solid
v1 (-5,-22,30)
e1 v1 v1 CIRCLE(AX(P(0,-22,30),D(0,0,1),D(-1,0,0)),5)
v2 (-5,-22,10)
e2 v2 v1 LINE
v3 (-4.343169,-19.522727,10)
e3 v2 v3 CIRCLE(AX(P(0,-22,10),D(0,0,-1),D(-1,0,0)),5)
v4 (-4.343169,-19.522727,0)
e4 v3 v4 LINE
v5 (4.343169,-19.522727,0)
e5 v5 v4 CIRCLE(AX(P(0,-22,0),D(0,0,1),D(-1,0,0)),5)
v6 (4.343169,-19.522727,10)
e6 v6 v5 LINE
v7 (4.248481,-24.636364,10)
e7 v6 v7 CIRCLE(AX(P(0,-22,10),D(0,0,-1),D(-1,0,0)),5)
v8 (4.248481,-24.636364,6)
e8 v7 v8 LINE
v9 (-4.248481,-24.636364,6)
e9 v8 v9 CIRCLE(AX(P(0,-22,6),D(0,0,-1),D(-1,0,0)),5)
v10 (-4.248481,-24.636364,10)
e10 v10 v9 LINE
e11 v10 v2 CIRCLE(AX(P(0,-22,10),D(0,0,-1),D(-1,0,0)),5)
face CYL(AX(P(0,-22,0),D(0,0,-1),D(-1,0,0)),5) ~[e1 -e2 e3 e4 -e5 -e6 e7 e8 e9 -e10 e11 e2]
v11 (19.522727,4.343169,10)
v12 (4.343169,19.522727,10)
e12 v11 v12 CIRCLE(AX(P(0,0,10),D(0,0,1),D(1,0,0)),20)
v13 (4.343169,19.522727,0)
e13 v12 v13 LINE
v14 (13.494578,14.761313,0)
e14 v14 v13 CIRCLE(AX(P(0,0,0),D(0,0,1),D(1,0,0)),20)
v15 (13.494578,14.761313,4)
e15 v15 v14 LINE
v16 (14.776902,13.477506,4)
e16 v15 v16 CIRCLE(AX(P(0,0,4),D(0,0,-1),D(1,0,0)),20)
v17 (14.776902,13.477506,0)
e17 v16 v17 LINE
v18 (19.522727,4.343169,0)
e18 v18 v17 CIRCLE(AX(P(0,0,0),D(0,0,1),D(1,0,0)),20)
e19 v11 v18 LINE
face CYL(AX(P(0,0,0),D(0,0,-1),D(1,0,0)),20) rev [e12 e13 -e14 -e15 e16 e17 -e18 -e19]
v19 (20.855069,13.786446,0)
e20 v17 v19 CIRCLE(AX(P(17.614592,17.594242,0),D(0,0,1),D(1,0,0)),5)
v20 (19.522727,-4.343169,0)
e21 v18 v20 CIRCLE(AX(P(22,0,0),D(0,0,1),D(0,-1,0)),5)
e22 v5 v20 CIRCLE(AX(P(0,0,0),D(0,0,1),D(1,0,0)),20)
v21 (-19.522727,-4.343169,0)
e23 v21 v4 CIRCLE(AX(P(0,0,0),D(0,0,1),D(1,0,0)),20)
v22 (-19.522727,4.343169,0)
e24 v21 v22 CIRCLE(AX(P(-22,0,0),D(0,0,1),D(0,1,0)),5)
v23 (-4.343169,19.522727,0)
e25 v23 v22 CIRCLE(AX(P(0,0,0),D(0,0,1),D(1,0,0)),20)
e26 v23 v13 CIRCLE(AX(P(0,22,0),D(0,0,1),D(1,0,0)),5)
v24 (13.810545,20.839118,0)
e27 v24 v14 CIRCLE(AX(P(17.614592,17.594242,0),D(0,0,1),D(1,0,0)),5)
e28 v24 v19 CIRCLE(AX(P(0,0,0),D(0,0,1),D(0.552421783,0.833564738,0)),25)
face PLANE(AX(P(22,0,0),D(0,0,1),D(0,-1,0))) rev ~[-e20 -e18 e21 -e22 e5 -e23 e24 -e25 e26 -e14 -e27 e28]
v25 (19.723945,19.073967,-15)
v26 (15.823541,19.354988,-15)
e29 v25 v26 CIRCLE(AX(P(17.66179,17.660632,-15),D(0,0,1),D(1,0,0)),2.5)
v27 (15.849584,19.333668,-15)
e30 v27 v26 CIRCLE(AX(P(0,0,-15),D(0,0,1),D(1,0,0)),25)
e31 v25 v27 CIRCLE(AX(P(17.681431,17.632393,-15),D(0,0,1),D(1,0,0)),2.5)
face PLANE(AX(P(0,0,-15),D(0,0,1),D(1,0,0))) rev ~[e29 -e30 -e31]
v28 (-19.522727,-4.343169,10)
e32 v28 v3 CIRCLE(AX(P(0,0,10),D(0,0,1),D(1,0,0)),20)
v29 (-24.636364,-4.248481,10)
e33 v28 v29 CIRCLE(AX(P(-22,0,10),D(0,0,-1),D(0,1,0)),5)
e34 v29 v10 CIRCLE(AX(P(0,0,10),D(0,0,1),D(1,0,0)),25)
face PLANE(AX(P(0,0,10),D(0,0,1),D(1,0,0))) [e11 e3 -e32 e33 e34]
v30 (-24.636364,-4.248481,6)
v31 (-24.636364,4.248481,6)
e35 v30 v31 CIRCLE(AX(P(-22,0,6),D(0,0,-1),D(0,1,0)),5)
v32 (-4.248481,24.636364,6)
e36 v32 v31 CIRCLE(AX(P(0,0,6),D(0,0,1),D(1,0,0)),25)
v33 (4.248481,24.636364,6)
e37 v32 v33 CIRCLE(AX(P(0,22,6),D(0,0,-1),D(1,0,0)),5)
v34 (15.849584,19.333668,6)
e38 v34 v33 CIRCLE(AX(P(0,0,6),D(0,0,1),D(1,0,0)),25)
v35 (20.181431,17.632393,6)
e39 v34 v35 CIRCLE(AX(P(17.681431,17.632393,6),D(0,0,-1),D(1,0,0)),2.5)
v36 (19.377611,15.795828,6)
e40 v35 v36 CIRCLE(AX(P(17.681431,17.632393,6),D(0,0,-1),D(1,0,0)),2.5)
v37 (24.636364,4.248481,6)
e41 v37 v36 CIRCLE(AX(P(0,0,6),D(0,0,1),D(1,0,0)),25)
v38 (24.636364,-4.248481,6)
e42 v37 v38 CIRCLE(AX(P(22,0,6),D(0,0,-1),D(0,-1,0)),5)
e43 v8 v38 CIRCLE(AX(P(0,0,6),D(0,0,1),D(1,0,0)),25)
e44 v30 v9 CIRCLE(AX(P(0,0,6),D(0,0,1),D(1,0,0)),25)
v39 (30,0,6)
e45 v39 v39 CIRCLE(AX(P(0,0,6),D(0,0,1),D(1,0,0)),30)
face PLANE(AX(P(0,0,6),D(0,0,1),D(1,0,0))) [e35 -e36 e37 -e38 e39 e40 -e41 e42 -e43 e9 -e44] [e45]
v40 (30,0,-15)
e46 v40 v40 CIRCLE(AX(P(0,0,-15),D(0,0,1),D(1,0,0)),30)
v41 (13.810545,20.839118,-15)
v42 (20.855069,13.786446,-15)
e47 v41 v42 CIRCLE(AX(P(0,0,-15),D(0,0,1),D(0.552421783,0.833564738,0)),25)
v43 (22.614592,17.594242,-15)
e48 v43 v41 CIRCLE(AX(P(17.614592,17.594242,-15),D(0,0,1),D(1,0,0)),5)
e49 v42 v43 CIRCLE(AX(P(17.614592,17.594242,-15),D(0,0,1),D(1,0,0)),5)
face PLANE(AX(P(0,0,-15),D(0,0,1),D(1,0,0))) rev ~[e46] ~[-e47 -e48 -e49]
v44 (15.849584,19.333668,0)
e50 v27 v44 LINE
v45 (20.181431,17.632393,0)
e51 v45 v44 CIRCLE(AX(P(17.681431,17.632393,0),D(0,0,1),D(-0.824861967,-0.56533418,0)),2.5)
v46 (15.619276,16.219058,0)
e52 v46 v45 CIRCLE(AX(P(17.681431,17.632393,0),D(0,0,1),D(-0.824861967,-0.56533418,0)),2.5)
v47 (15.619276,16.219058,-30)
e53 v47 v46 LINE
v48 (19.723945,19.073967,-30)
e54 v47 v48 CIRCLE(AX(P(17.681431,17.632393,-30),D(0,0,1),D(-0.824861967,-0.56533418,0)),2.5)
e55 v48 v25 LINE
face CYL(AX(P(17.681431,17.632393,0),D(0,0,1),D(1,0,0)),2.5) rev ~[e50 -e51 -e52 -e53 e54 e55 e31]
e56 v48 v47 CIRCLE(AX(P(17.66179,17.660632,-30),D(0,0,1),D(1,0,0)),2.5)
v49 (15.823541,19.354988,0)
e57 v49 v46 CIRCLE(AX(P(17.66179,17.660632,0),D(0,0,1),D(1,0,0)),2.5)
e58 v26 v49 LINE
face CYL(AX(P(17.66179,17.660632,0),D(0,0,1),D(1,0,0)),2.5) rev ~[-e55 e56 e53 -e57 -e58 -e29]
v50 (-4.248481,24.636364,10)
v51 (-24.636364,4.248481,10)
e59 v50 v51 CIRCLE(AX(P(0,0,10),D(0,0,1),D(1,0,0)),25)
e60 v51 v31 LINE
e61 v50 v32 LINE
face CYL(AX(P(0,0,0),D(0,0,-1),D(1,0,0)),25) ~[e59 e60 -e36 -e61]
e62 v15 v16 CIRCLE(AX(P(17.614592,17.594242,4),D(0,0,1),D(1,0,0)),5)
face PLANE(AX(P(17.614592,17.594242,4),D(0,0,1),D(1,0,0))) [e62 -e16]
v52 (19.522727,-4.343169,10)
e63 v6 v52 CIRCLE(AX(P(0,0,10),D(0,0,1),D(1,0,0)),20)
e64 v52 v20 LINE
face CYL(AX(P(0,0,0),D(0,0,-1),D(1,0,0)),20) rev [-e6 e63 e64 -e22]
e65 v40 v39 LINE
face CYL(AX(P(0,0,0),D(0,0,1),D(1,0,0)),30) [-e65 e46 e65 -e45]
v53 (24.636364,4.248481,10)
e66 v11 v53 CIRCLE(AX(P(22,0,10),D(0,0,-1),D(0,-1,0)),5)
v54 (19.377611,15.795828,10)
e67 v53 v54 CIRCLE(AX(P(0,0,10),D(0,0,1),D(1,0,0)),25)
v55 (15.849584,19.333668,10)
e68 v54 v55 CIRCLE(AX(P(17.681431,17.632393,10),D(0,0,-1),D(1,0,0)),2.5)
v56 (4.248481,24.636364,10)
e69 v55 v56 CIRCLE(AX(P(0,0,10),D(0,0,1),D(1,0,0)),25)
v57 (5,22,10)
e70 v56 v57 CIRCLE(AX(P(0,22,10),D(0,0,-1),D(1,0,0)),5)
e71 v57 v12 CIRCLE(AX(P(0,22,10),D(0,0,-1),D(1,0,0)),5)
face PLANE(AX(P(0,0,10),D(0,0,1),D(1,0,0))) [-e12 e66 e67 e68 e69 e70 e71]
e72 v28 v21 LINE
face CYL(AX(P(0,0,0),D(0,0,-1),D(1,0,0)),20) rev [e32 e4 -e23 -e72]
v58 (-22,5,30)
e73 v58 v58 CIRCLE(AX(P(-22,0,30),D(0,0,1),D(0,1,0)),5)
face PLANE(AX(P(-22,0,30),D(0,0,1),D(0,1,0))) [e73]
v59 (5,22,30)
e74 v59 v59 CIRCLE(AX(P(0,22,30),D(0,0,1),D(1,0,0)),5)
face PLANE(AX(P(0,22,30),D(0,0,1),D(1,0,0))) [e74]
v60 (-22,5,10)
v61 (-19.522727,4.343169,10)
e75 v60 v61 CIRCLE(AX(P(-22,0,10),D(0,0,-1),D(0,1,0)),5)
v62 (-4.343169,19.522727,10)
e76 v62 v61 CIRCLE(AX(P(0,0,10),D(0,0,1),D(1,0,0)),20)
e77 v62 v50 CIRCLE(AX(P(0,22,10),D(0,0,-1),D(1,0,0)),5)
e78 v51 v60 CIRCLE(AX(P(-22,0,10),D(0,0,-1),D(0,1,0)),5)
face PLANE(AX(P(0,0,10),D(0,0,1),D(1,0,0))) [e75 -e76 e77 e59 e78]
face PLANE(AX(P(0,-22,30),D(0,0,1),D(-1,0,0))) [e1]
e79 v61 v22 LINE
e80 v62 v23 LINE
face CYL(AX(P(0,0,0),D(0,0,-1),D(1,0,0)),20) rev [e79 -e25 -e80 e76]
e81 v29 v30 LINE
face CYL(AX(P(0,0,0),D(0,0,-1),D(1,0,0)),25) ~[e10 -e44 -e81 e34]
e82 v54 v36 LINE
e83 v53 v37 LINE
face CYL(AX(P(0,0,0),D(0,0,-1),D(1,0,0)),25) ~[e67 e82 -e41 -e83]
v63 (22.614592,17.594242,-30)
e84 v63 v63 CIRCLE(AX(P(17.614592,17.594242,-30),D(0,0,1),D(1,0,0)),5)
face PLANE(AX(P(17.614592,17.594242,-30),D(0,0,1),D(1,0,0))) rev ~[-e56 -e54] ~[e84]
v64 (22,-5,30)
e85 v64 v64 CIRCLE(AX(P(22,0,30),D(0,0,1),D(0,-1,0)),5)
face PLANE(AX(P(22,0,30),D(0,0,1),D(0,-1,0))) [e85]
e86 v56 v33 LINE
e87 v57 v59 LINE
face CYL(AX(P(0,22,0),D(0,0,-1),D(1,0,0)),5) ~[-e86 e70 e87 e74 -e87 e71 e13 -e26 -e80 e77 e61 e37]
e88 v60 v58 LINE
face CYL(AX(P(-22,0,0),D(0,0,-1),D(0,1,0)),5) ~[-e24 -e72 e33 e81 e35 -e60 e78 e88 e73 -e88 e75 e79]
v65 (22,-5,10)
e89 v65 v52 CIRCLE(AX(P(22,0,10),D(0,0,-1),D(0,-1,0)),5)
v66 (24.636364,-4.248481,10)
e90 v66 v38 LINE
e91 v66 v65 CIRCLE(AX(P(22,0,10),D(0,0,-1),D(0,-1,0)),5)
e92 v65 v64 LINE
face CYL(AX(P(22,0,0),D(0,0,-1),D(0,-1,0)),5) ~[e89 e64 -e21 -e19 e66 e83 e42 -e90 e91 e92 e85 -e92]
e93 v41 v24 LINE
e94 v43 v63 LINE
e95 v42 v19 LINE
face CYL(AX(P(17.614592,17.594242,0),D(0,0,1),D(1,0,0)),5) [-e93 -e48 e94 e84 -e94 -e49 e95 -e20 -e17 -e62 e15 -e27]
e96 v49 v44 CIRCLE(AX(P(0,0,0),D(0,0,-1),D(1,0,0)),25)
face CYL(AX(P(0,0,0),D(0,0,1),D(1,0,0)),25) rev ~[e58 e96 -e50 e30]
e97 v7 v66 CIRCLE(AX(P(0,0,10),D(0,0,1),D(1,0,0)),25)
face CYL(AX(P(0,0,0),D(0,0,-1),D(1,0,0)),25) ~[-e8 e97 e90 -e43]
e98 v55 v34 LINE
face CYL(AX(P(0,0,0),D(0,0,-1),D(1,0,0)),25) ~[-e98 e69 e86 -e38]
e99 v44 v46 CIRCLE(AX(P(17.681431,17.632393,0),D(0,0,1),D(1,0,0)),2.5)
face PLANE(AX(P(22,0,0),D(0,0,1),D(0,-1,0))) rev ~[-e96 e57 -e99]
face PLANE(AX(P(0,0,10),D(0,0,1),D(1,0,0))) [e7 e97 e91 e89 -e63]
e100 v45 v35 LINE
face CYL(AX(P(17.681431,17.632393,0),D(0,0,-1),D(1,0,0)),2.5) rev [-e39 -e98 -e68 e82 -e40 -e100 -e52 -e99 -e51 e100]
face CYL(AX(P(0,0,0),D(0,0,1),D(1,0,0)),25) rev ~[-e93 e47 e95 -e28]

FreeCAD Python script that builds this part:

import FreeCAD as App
import Part
import Sketcher

doc = App.newDocument("Part")
body = doc.addObject("PartDesign::Body", "Body")

sketch1 = body.newObject("Sketcher::SketchObject", "Sketch")
sketch1.AttachmentSupport = (doc.getObject("XY_Plane"), [""])
sketch1.MapMode = "FlatFace"
sketch1.addGeometry([
    Part.Circle(App.Vector(0, 0, 0), App.Vector(0, 0, 1), 30),
    Part.Circle(App.Vector(0, 0, 0), App.Vector(0, 0, 1), 25),
], False)
sketch1.addConstraint([
    Sketcher.Constraint("Coincident", 0, 3, -1, 1),
    Sketcher.Constraint("Coincident", 1, 3, -1, 1),
    Sketcher.Constraint("Diameter", 0, 60.0),
    Sketcher.Constraint("Diameter", 1, 50.0),
])
pad1 = body.newObject("PartDesign::Pad", "Pad")
pad1.Profile = sketch1
pad1.Type = "TwoLengths"
pad1.Length = 6
pad1.Length2 = 15

sketch2 = body.newObject("Sketcher::SketchObject", "Sketch001")
sketch2.AttachmentSupport = (doc.getObject("XY_Plane"), [""])
sketch2.MapMode = "FlatFace"
sketch2.addGeometry(Part.Circle(App.Vector(0, 22, 0), App.Vector(0, 0, 1), 5), False)
sketch2.addConstraint([
    Sketcher.Constraint("PointOnObject", 0, 3, -2),
    Sketcher.Constraint("Diameter", 0, 10.0),
    Sketcher.Constraint("DistanceY", -1, 1, 0, 3, 22.0),
])
pad2 = body.newObject("PartDesign::Pad", "Pad001")
pad2.Profile = sketch2
pad2.Length = 30
doc.recompute()

polarpattern = body.newObject("PartDesign::PolarPattern", "PolarPattern")
polarpattern.Originals = [pad2]
polarpattern.Axis = (doc.getObject("Z_Axis"), [""])
polarpattern.Angle = 360
polarpattern.Occurrences = 4
body.Tip = polarpattern

sketch3 = body.newObject("Sketcher::SketchObject", "Sketch002")
sketch3.AttachmentSupport = (doc.getObject("XY_Plane"), [""])
sketch3.MapMode = "FlatFace"
sketch3.addGeometry([
    Part.Circle(App.Vector(0, 0, 0), App.Vector(0, 0, 1), 25),
    Part.Circle(App.Vector(0, 0, 0), App.Vector(0, 0, 1), 20),
], False)
sketch3.addConstraint([
    Sketcher.Constraint("Coincident", 0, 3, -1, 1),
    Sketcher.Constraint("Coincident", 1, 3, -1, 1),
    Sketcher.Constraint("Diameter", 0, 50.0),
    Sketcher.Constraint("Diameter", 1, 40.0),
])
pad3 = body.newObject("PartDesign::Pad", "Pad002")
pad3.Profile = sketch3
pad3.Length = 10

sketch4 = body.newObject("Sketcher::SketchObject", "Sketch003")
sketch4.AttachmentSupport = (doc.getObject("XY_Plane"), [""])
sketch4.MapMode = "FlatFace"
sketch4.addGeometry([
    Part.Circle(App.Vector(17.6, 17.6, 0), App.Vector(0, 0, 1), 5),
    Part.Circle(App.Vector(17.7, 17.7, 0), App.Vector(0, 0, 1), 2.5),
], False)
sketch4.addConstraint([
    Sketcher.Constraint("Diameter", 0, 10.0),
    Sketcher.Constraint("Diameter", 1, 5.0),
    Sketcher.Constraint("DistanceX", 0, 3, 1, 3, 0.047198),
    Sketcher.Constraint("DistanceX", -1, 1, 0, 3, 17.614592),
    Sketcher.Constraint("DistanceY", -1, 1, 1, 3, 17.660632),
    Sketcher.Constraint("DistanceY", 0, 3, 1, 3, 0.06639),
])
pad4 = body.newObject("PartDesign::Pad", "Pad003")
pad4.Profile = sketch4
pad4.Type = "TwoLengths"
pad4.Length = 4
pad4.Length2 = 30

sketch5 = body.newObject("Sketcher::SketchObject", "Sketch004")
sketch5.AttachmentSupport = (doc.getObject("XY_Plane"), [""])
sketch5.MapMode = "FlatFace"
sketch5.addGeometry(Part.Circle(App.Vector(17.7, 17.6, 0), App.Vector(0, 0, 1), 2.5), False)
sketch5.addConstraint([
    Sketcher.Constraint("Diameter", 0, 5.0),
    Sketcher.Constraint("DistanceX", -1, 1, 0, 3, 17.681431),
    Sketcher.Constraint("DistanceY", -1, 1, 0, 3, 17.632393),
])
pocket1 = body.newObject("PartDesign::Pocket", "Pocket")
pocket1.Profile = sketch5
pocket1.Type = "ThroughAll"
pocket1.Midplane = True

doc.recompute()
